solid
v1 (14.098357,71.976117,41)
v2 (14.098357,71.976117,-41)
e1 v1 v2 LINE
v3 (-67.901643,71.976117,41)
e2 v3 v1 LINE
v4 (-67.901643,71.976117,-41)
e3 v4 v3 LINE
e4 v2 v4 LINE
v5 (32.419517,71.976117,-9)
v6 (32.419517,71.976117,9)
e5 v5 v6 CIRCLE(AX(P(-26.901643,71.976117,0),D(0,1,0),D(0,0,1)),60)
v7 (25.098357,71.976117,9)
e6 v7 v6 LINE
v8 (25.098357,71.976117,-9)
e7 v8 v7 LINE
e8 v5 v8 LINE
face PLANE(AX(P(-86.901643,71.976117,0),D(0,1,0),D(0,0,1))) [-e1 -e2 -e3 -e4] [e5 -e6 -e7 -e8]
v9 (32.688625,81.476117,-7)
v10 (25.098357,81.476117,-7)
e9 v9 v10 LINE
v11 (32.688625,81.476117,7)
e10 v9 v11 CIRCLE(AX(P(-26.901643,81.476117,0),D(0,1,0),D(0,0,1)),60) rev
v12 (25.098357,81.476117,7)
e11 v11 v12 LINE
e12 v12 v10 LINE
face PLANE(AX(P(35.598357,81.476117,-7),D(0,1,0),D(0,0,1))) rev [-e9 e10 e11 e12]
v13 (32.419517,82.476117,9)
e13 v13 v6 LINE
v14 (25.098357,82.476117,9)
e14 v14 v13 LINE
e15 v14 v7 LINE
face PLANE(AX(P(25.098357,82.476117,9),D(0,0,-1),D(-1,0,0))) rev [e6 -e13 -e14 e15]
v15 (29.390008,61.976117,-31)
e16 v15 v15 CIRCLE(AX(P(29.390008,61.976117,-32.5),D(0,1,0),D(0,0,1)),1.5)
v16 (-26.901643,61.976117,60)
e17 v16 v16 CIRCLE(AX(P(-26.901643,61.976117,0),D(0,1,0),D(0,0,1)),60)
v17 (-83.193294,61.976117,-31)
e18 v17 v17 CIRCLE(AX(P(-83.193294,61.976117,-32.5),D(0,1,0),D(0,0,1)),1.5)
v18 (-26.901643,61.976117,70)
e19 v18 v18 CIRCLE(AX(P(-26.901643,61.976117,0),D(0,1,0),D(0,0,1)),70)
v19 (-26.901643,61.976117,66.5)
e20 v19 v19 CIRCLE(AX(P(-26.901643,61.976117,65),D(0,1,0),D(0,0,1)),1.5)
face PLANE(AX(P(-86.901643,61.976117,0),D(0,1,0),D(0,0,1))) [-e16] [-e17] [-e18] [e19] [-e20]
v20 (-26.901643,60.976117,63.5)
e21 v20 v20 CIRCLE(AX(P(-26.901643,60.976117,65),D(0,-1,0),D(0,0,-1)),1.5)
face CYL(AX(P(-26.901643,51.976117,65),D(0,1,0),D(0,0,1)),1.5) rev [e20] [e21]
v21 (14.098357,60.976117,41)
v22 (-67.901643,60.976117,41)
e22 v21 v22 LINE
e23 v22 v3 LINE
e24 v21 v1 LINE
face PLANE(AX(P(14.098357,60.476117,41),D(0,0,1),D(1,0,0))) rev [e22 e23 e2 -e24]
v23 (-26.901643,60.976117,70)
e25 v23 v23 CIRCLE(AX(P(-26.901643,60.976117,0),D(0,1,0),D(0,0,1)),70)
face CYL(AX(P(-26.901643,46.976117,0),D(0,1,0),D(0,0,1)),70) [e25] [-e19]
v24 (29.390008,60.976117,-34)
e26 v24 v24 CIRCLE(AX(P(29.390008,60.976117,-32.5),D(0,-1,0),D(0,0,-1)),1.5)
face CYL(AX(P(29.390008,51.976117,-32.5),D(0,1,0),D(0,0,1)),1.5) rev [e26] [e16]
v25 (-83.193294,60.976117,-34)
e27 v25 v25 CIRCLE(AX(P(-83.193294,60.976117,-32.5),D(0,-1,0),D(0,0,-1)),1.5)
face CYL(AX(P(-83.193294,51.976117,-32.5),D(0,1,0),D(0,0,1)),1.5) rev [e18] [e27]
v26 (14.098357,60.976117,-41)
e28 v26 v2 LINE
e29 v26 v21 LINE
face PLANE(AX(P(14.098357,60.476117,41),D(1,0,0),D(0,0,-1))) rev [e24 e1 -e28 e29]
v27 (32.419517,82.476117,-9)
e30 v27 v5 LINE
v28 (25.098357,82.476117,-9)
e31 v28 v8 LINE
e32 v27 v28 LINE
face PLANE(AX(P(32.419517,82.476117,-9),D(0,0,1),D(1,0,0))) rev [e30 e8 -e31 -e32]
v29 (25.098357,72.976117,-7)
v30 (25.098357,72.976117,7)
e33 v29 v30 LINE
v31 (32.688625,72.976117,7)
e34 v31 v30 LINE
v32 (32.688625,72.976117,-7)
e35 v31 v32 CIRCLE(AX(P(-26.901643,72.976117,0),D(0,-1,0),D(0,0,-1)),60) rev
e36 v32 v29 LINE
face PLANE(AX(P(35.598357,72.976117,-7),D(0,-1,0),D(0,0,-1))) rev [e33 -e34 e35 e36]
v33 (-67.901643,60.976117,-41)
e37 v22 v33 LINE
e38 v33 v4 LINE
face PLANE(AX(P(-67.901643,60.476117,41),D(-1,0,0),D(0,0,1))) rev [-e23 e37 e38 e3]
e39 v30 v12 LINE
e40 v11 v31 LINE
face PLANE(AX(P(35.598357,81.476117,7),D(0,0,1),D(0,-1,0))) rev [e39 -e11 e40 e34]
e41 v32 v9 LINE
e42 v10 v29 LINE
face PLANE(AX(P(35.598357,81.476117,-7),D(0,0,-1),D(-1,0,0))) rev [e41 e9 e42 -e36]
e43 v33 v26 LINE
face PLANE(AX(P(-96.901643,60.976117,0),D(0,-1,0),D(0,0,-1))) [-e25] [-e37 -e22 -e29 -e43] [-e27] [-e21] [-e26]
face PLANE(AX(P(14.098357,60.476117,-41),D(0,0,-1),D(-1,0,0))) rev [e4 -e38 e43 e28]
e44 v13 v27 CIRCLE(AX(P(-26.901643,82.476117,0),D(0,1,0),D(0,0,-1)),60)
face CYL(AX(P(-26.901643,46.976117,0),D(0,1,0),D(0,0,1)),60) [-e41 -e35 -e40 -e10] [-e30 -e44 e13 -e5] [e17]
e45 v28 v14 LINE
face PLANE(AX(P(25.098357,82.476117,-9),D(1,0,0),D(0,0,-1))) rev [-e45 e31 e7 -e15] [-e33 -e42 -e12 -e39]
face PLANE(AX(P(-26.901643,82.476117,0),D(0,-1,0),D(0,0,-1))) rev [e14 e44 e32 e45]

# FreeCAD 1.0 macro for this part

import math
import FreeCAD as App
import Part
import Sketcher
from FreeCAD import Vector
Q = App.Units.Quantity

doc = App.newDocument("Part")
body = doc.addObject("PartDesign::Body", "Body")

# Sketch on XY plane
sketch1 = doc.addObject("Sketcher::SketchObject", "Sketch")
body.addObject(sketch1)
sketch1.AttachmentSupport = (doc.XY_Plane, [""])
sketch1.MapMode = "FlatFace"
sketch1.addGeometry([
    Part.LineSegment(Vector(-96.901643, 61.976117, 0), Vector(-96.901643, 60.976117, 0)),  # 0
    Part.LineSegment(Vector(-96.901643, 60.976117, 0), Vector(-67.901643, 60.976117, 0)),  # 1
    Part.LineSegment(Vector(-67.901643, 60.976117, 0), Vector(-67.901643, 71.976117, 0)),  # 2
    Part.LineSegment(Vector(-67.901643, 71.976117, 0), Vector(-86.901643, 71.976117, 0)),  # 3
    Part.LineSegment(Vector(-86.901643, 71.976117, 0), Vector(-86.901643, 61.976117, 0)),  # 4
    Part.LineSegment(Vector(-86.901643, 61.976117, 0), Vector(-96.901643, 61.976117, 0)),  # 5
], False)
sketch1.addGeometry(Part.LineSegment(Vector(-26.901643, 71.976117, 0), Vector(-26.901643, 60.976117, 0)), True)  # axis
sketch1.addConstraint([
    Sketcher.Constraint("Coincident", 0, 2, 1, 1),
    Sketcher.Constraint("Coincident", 1, 2, 2, 1),
    Sketcher.Constraint("Coincident", 2, 2, 3, 1),
    Sketcher.Constraint("Coincident", 3, 2, 4, 1),
    Sketcher.Constraint("Coincident", 4, 2, 5, 1),
    Sketcher.Constraint("Coincident", 5, 2, 0, 1),
    Sketcher.Constraint("Vertical", 0),
    Sketcher.Constraint("Horizontal", 1),
    Sketcher.Constraint("Vertical", 2),
    Sketcher.Constraint("Horizontal", 3),
    Sketcher.Constraint("Vertical", 4),
    Sketcher.Constraint("Horizontal", 5),
    Sketcher.Constraint("Vertical", 6),
    Sketcher.Constraint("Horizontal", 3, 2, 6, 1),
    Sketcher.Constraint("Horizontal", 1, 2, 6, 2),
    Sketcher.Constraint("Equal", 5, 4),
    Sketcher.Constraint("DistanceX", 1, 1, 1, 2, Q("29 mm")),
    Sketcher.Constraint("DistanceX", 3, 2, 3, 1, Q("19 mm")),
    Sketcher.Constraint("DistanceY", 0, 2, 0, 1, Q("1 mm")),
    Sketcher.Constraint("DistanceX", 2, 2, 6, 1, Q("41 mm")),
    Sketcher.Constraint("DistanceX", 0, 2, -1, 1, Q("96.901643 mm")),
    Sketcher.Constraint("DistanceY", -1, 1, 0, 2, Q("60.976117 mm")),
])
revolution = doc.addObject("PartDesign::Revolution", "Revolution")
body.addObject(revolution)
revolution.Profile = sketch1
revolution.ReferenceAxis = (sketch1, ["Axis0"])
revolution.Angle = 360

# Sketch on XZ plane
sketch2 = doc.addObject("Sketcher::SketchObject", "Sketch001")
body.addObject(sketch2)
sketch2.AttachmentSupport = (doc.XZ_Plane, [""])
sketch2.MapMode = "FlatFace"
sketch2.AttachmentOffset = App.Placement(Vector(0, 0, -71.976117), App.Rotation())
sketch2.addGeometry([
    Part.LineSegment(Vector(-67.901643, -41, 0), Vector(-67.901643, 41, 0)),
    Part.LineSegment(Vector(-67.901643, 41, 0), Vector(14.098357, 41, 0)),
    Part.LineSegment(Vector(14.098357, 41, 0), Vector(14.098357, -41, 0)),
    Part.LineSegment(Vector(14.098357, -41, 0), Vector(-67.901643, -41, 0)),
], False)
sketch2.addConstraint([
    Sketcher.Constraint("Coincident", 0, 2, 1, 1),
    Sketcher.Constraint("Coincident", 1, 2, 2, 1),
    Sketcher.Constraint("Coincident", 2, 2, 3, 1),
    Sketcher.Constraint("Coincident", 3, 2, 0, 1),
    Sketcher.Constraint("Vertical", 0),
    Sketcher.Constraint("Horizontal", 1),
    Sketcher.Constraint("Vertical", 2),
    Sketcher.Constraint("Horizontal", 3),
    Sketcher.Constraint("Equal", 3, 0),
    Sketcher.Constraint("DistanceX", 1, 1, 1, 2, Q("82 mm")),
    Sketcher.Constraint("DistanceY", -1, 1, 0, 2, Q("41 mm")),
    Sketcher.Constraint("DistanceX", 0, 2, -1, 1, Q("67.901643 mm")),
])
pocket1 = doc.addObject("PartDesign::Pocket", "Pocket")
body.addObject(pocket1)
pocket1.Profile = sketch2
pocket1.Length = 11.5
pocket1.Reversed = True

# Sketch on XZ plane
sketch3 = doc.addObject("Sketcher::SketchObject", "Sketch002")
body.addObject(sketch3)
sketch3.AttachmentSupport = (doc.XZ_Plane, [""])
sketch3.MapMode = "FlatFace"
sketch3.AttachmentOffset = App.Placement(Vector(0, 0, -71.976117), App.Rotation())
sketch3.addGeometry([
    Part.LineSegment(Vector(32.419517, -9, 0), Vector(25.098357, -9, 0)),
    Part.LineSegment(Vector(25.098357, -9, 0), Vector(25.098357, 9, 0)),
    Part.LineSegment(Vector(25.098357, 9, 0), Vector(32.419517, 9, 0)),
    Part.ArcOfCircle(Part.Circle(Vector(-26.901643, 0, 0), Vector(0, 0, 1), 60), math.radians(-8.626927), math.radians(8.626927)),
], False)
sketch3.addConstraint([
    Sketcher.Constraint("Coincident", 0, 2, 1, 1),
    Sketcher.Constraint("Coincident", 1, 2, 2, 1),
    Sketcher.Constraint("Coincident", 2, 2, 3, 2),
    Sketcher.Constraint("Coincident", 3, 1, 0, 1),
    Sketcher.Constraint("Horizontal", 0),
    Sketcher.Constraint("Vertical", 1),
    Sketcher.Constraint("Horizontal", 2),
    Sketcher.Constraint("Symmetric", 2, 2, 3, 1, -1),
    Sketcher.Constraint("Radius", 3, Q("60 mm")),
    Sketcher.Constraint("DistanceY", 1, 1, 1, 2, Q("18 mm")),
    Sketcher.Constraint("DistanceX", 3, 3, 0, 2, Q("52 mm")),
    Sketcher.Constraint("DistanceX", 3, 3, -1, 1, Q("26.901643 mm")),
])
pad1 = doc.addObject("PartDesign::Pad", "Pad")
body.addObject(pad1)
pad1.Profile = sketch3
pad1.Length = 10.5
pad1.Reversed = True

# Sketch on YZ plane
sketch4 = doc.addObject("Sketcher::SketchObject", "Sketch003")
body.addObject(sketch4)
sketch4.AttachmentSupport = (doc.YZ_Plane, [""])
sketch4.MapMode = "FlatFace"
sketch4.AttachmentOffset = App.Placement(Vector(0, 0, 25.098357), App.Rotation())
sketch4.addGeometry([
    Part.LineSegment(Vector(81.476117, -7, 0), Vector(72.976117, -7, 0)),
    Part.LineSegment(Vector(72.976117, -7, 0), Vector(72.976117, 7, 0)),
    Part.LineSegment(Vector(72.976117, 7, 0), Vector(81.476117, 7, 0)),
    Part.LineSegment(Vector(81.476117, 7, 0), Vector(81.476117, -7, 0)),
], False)
sketch4.addConstraint([
    Sketcher.Constraint("Coincident", 0, 2, 1, 1),
    Sketcher.Constraint("Coincident", 1, 2, 2, 1),
    Sketcher.Constraint("Coincident", 2, 2, 3, 1),
    Sketcher.Constraint("Coincident", 3, 2, 0, 1),
    Sketcher.Constraint("Horizontal", 0),
    Sketcher.Constraint("Vertical", 1),
    Sketcher.Constraint("Horizontal", 2),
    Sketcher.Constraint("Vertical", 3),
    Sketcher.Constraint("DistanceY", 1, 1, 1, 2, Q("14 mm")),
    Sketcher.Constraint("DistanceX", 0, 2, 0, 1, Q("8.5 mm")),
    Sketcher.Constraint("DistanceY", 0, 2, -1, 1, Q("7 mm")),
    Sketcher.Constraint("DistanceX", -1, 1, 0, 2, Q("72.976117 mm")),
])
pocket2 = doc.addObject("PartDesign::Pocket", "Pocket001")
body.addObject(pocket2)
pocket2.Profile = sketch4
pocket2.Length = 10.5
pocket2.Reversed = True

# Sketch on XZ plane
sketch5 = doc.addObject("Sketcher::SketchObject", "Sketch004")
body.addObject(sketch5)
sketch5.AttachmentSupport = (doc.XZ_Plane, [""])
sketch5.MapMode = "FlatFace"
sketch5.AttachmentOffset = App.Placement(Vector(0, 0, -61.976117), App.Rotation())
sketch5.addGeometry([
    Part.Circle(Vector(-26.901643, 65, 0), Vector(0, 0, 1), 1.5),
    Part.Circle(Vector(-83.193294, -32.5, 0), Vector(0, 0, 1), 1.5),
    Part.Circle(Vector(29.390008, -32.5, 0), Vector(0, 0, 1), 1.5),
], False)
sketch5.addConstraint([
    Sketcher.Constraint("Equal", 0, 1),
    Sketcher.Constraint("Equal", 1, 2),
    Sketcher.Constraint("Horizontal", 1, 3, 2, 3),
    Sketcher.Constraint("Diameter", 0, Q("3 mm")),
    Sketcher.Constraint("DistanceY", -1, 1, 0, 3, Q("65 mm")),
    Sketcher.Constraint("DistanceY", 1, 3, -1, 1, Q("32.5 mm")),
    Sketcher.Constraint("DistanceX", -1, 1, 2, 3, Q("29.390008 mm")),
    Sketcher.Constraint("DistanceX", 1, 3, 0, 3, Q("56.291651 mm")),
    Sketcher.Constraint("DistanceX", 0, 3, 2, 3, Q("56.291651 mm")),
])
pocket3 = doc.addObject("PartDesign::Pocket", "Pocket002")
body.addObject(pocket3)
pocket3.Profile = sketch5
pocket3.Length = 10
pocket3.Reversed = True

doc.recompute()
